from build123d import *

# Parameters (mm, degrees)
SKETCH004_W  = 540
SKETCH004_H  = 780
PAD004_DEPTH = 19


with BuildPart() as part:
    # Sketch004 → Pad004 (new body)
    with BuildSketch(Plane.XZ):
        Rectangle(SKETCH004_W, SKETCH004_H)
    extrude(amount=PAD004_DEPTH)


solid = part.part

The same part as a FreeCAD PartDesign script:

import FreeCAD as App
import Part
import Sketcher
from FreeCAD import Vector
Q = App.Units.Quantity


def add_polygon(sketch, points):
    """Adds a closed chain of lines whose ends are joined by coincident constraints."""
    first, n = sketch.GeometryCount, len(points)
    for a, b in zip(points, points[1:] + points[:1]):
        sketch.addGeometry(Part.LineSegment(App.Vector(*a, 0), App.Vector(*b, 0)), False)
    for i in range(n):
        sketch.addConstraint(Sketcher.Constraint("Coincident", first + i, 2, first + (i + 1) % n, 1))

doc = App.newDocument("Part")
params = doc.addObject("Spreadsheet::Sheet", "Params")
for row, (alias, value) in enumerate([
    ("sketch1_width", "540 mm"),
    ("sketch1_height", "780 mm"),
    ("pad1_length", "19 mm"),
], start=1):
    params.set(f"A{row}", alias)
    params.set(f"B{row}", "=" + value)
    params.setAlias(f"B{row}", alias)

body = doc.addObject("PartDesign::Body", "Body")

sketch1 = body.newObject("Sketcher::SketchObject", "Sketch")
sketch1.AttachmentSupport = (doc.getObject("XZ_Plane"), [""])
sketch1.MapMode = "FlatFace"
add_polygon(sketch1, [(-270, 390), (-270, -390), (270, -390), (270, 390)])
sketch1.addConstraint(Sketcher.Constraint("Vertical", 0))
sketch1.addConstraint(Sketcher.Constraint("Horizontal", 1))
sketch1.addConstraint(Sketcher.Constraint("Vertical", 2))
sketch1.addConstraint(Sketcher.Constraint("Horizontal", 3))
sketch1.addConstraint(Sketcher.Constraint("Symmetric", 0, 2, 2, 2, -1, 1))
sketch1.addConstraint(Sketcher.Constraint("DistanceX", 1, 1, 1, 2, Q("540 mm")))
sketch1.addConstraint(Sketcher.Constraint("DistanceY", 0, 2, 0, 1, Q("780 mm")))
sketch1.setExpression("Constraints[9]", "Params.sketch1_width")
sketch1.setExpression("Constraints[10]", "Params.sketch1_height")
pad1 = body.newObject("PartDesign::Pad", "Pad")
pad1.Profile = sketch1
pad1.setExpression("Length", "Params.pad1_length")

doc.recompute()
